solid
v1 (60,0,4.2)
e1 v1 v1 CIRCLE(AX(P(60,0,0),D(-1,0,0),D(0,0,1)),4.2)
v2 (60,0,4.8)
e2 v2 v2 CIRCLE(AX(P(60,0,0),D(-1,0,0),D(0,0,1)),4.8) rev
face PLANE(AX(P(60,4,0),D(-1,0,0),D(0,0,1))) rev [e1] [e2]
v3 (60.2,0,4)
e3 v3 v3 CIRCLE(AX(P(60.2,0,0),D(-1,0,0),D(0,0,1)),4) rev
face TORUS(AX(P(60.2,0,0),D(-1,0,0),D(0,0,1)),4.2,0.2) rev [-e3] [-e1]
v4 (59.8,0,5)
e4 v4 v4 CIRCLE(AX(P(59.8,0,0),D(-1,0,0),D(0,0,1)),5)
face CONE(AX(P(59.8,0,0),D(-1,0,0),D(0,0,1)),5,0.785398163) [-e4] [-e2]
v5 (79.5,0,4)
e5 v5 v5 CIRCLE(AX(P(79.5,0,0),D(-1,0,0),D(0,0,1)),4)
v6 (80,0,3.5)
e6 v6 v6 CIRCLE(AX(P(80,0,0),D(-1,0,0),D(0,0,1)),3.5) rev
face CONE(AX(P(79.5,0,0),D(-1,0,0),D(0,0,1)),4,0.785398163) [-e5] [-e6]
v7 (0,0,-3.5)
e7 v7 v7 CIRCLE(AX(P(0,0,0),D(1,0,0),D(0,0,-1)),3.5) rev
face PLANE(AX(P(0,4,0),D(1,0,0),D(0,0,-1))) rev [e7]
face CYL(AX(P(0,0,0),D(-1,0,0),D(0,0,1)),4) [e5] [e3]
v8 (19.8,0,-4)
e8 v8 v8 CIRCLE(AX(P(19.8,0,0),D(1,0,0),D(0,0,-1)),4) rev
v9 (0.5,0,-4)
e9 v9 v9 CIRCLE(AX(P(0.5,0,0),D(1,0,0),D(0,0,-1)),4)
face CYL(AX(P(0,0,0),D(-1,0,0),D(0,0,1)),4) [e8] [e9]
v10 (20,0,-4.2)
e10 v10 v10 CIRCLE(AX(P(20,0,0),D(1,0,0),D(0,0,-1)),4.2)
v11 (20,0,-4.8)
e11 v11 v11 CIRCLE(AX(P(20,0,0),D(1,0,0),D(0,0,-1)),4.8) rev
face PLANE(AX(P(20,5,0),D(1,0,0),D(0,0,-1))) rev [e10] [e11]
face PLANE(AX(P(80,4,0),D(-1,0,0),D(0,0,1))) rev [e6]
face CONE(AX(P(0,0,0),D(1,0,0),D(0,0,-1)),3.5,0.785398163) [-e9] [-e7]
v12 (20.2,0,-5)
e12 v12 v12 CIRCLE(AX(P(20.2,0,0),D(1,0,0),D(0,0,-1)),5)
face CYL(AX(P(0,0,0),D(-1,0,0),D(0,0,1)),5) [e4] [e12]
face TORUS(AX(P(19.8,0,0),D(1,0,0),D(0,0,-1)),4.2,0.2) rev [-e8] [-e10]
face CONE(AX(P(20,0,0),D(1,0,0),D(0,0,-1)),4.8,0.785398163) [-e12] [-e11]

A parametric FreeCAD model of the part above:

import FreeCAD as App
import Part
import Sketcher

V = App.Vector


def edges_at(feature, points):
    """Names of the edges that pass closest to the given points."""
    edges = feature.Shape.Edges
    near = lambda p: min(range(len(edges)), key=lambda i: edges[i].distToShape(Part.Vertex(*p))[0])
    return sorted({f"Edge{near(p) + 1}" for p in points})

doc = App.newDocument("Part")
body = doc.addObject("PartDesign::Body", "Body")

# Sketch on XY plane
sketch1 = body.newObject("Sketcher::SketchObject", "Sketch")
sketch1.AttachmentSupport = (doc.getObject("XY_Plane"), [""])
sketch1.MapMode = "FlatFace"
sketch1.addGeometry([
    Part.LineSegment(V(0, 0, 0), V(80, 0, 0)),  # 0
    Part.LineSegment(V(80, 0, 0), V(80, 4, 0)),  # 1
    Part.LineSegment(V(80, 4, 0), V(60, 4, 0)),  # 2
    Part.LineSegment(V(60, 4, 0), V(60, 5, 0)),  # 3
    Part.LineSegment(V(60, 5, 0), V(20, 5, 0)),  # 4
    Part.LineSegment(V(20, 5, 0), V(20, 4, 0)),  # 5
    Part.LineSegment(V(20, 4, 0), V(0, 4, 0)),  # 6
    Part.LineSegment(V(0, 4, 0), V(0, 0, 0)),  # 7
], False)
sketch1.addConstraint([
    Sketcher.Constraint("Coincident", 0, 2, 1, 1),
    Sketcher.Constraint("Coincident", 1, 2, 2, 1),
    Sketcher.Constraint("Coincident", 2, 2, 3, 1),
    Sketcher.Constraint("Coincident", 3, 2, 4, 1),
    Sketcher.Constraint("Coincident", 4, 2, 5, 1),
    Sketcher.Constraint("Coincident", 5, 2, 6, 1),
    Sketcher.Constraint("Coincident", 6, 2, 7, 1),
    Sketcher.Constraint("Coincident", 7, 2, 0, 1),
    Sketcher.Constraint("Horizontal", 0),
    Sketcher.Constraint("Vertical", 1),
    Sketcher.Constraint("Horizontal", 2),
    Sketcher.Constraint("Vertical", 3),
    Sketcher.Constraint("Horizontal", 4),
    Sketcher.Constraint("Vertical", 5),
    Sketcher.Constraint("Horizontal", 6),
    Sketcher.Constraint("Vertical", 7),
    Sketcher.Constraint("Coincident", 7, 2, -1, 1),
    Sketcher.Constraint("Horizontal", 2, 2, 5, 2),
    Sketcher.Constraint("Equal", 2, 6),
    Sketcher.Constraint("DistanceX", 0, 1, 0, 2, 80.0),
    Sketcher.Constraint("DistanceX", 2, 2, 2, 1, 20.0),
    Sketcher.Constraint("DistanceY", 1, 1, 1, 2, 4.0),
    Sketcher.Constraint("DistanceY", 3, 1, 3, 2, 1.0),
])
revolution = body.newObject("PartDesign::Revolution", "Revolution")
revolution.Profile = sketch1
revolution.ReferenceAxis = (sketch1, ["H_Axis"])
revolution.Angle = 360
doc.recompute()

chamfer = body.newObject("PartDesign::Chamfer", "Chamfer")
chamfer.Base = (revolution, edges_at(revolution, [(60, 0, -5)]))
chamfer.Size = 0.2
doc.recompute()

chamfer2 = body.newObject("PartDesign::Chamfer", "Chamfer001")
chamfer2.Base = (chamfer, edges_at(chamfer, [(20, 0, -5)]))
chamfer2.Size = 0.2
doc.recompute()

chamfer3 = body.newObject("PartDesign::Chamfer", "Chamfer002")
chamfer3.Base = (chamfer2, edges_at(chamfer2, [(0, 0, -4)]))
chamfer3.Size = 0.5
doc.recompute()

chamfer4 = body.newObject("PartDesign::Chamfer", "Chamfer003")
chamfer4.Base = (chamfer3, edges_at(chamfer3, [(80, 0, -4)]))
chamfer4.Size = 0.5
doc.recompute()

fillet = body.newObject("PartDesign::Fillet", "Fillet")
fillet.Base = (chamfer4, edges_at(chamfer4, [(20, 0, -4)]))
fillet.Radius = 0.2
doc.recompute()

fillet2 = body.newObject("PartDesign::Fillet", "Fillet001")
fillet2.Base = (fillet, edges_at(fillet, [(60, 0, -4)]))
fillet2.Radius = 0.2

doc.recompute()
